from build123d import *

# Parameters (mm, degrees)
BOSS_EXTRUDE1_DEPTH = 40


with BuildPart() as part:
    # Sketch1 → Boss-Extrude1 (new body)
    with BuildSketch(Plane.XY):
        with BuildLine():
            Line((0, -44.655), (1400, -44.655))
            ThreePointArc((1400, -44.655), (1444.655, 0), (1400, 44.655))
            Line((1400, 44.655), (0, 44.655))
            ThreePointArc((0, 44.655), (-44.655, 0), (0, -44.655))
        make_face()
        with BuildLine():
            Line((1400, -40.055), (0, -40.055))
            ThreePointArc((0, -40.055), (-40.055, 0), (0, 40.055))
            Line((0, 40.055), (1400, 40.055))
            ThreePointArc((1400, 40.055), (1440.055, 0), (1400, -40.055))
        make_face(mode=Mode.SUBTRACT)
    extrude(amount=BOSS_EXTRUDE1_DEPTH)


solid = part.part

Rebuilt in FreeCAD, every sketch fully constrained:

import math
import FreeCAD as App
import Part
import Sketcher

V = App.Vector
Q = App.Units.Quantity

doc = App.newDocument("Part")
params = doc.addObject("Spreadsheet::Sheet", "Params")
for row, (alias, value) in enumerate([
    ("sketch1_width", "1400 mm"),
    ("pad1_length", "40 mm"),
], start=1):
    params.set(f"A{row}", alias)
    params.set(f"B{row}", "=" + value)
    params.setAlias(f"B{row}", alias)

body = doc.addObject("PartDesign::Body", "Body")

sketch1 = doc.addObject("Sketcher::SketchObject", "Sketch")
body.addObject(sketch1)
sketch1.AttachmentSupport = (doc.XY_Plane, [""])
sketch1.MapMode = "FlatFace"
sketch1.addGeometry([
    Part.LineSegment(V(0, -45, 0), V(1400, -45, 0)),
    Part.ArcOfCircle(Part.Circle(V(1400, 0, 0), V(0, 0, 1), 45), math.radians(-90), math.radians(90)),
    Part.LineSegment(V(1400, 45, 0), V(0, 45, 0)),
    Part.ArcOfCircle(Part.Circle(V(0, 0, 0), V(0, 0, 1), 45), math.radians(90), math.radians(270)),
    Part.ArcOfCircle(Part.Circle(V(1400, 0, 0), V(0, 0, 1), 40), math.radians(-90), math.radians(90)),
    Part.LineSegment(V(1400, -40, 0), V(0, -40, 0)),
    Part.ArcOfCircle(Part.Circle(V(0, 0, 0), V(0, 0, 1), 40), math.radians(90), math.radians(270)),
    Part.LineSegment(V(0, 40, 0), V(1400, 40, 0)),
], False)
sketch1.addConstraint([
    Sketcher.Constraint("Tangent", 0, 2, 1, 1),
    Sketcher.Constraint("Tangent", 1, 2, 2, 1),
    Sketcher.Constraint("Tangent", 2, 2, 3, 1),
    Sketcher.Constraint("Tangent", 3, 2, 0, 1),
    Sketcher.Constraint("Tangent", 4, 1, 5, 1),
    Sketcher.Constraint("Tangent", 5, 2, 6, 2),
    Sketcher.Constraint("Tangent", 6, 1, 7, 1),
    Sketcher.Constraint("Tangent", 7, 2, 4, 2),
    Sketcher.Constraint("Horizontal", 0),
    Sketcher.Constraint("Horizontal", 2),
    Sketcher.Constraint("Horizontal", 5),
    Sketcher.Constraint("Horizontal", 7),
    Sketcher.Constraint("Coincident", 3, 3, -1, 1),
    Sketcher.Constraint("Coincident", 6, 3, -1, 1),
    Sketcher.Constraint("Vertical", 4, 3, 0, 2),
    Sketcher.Constraint("DistanceX", 0, 1, 0, 2, Q("1400 mm")),
    Sketcher.Constraint("Radius", 1, Q("44.655 mm")),
    Sketcher.Constraint("Radius", 4, Q("40.055 mm")),
])
sketch1.setExpression("Constraints[15]", "Params.sketch1_width")
pad1 = doc.addObject("PartDesign::Pad", "Pad")
body.addObject(pad1)
pad1.Profile = sketch1
pad1.setExpression("Length", "Params.pad1_length")

doc.recompute()
